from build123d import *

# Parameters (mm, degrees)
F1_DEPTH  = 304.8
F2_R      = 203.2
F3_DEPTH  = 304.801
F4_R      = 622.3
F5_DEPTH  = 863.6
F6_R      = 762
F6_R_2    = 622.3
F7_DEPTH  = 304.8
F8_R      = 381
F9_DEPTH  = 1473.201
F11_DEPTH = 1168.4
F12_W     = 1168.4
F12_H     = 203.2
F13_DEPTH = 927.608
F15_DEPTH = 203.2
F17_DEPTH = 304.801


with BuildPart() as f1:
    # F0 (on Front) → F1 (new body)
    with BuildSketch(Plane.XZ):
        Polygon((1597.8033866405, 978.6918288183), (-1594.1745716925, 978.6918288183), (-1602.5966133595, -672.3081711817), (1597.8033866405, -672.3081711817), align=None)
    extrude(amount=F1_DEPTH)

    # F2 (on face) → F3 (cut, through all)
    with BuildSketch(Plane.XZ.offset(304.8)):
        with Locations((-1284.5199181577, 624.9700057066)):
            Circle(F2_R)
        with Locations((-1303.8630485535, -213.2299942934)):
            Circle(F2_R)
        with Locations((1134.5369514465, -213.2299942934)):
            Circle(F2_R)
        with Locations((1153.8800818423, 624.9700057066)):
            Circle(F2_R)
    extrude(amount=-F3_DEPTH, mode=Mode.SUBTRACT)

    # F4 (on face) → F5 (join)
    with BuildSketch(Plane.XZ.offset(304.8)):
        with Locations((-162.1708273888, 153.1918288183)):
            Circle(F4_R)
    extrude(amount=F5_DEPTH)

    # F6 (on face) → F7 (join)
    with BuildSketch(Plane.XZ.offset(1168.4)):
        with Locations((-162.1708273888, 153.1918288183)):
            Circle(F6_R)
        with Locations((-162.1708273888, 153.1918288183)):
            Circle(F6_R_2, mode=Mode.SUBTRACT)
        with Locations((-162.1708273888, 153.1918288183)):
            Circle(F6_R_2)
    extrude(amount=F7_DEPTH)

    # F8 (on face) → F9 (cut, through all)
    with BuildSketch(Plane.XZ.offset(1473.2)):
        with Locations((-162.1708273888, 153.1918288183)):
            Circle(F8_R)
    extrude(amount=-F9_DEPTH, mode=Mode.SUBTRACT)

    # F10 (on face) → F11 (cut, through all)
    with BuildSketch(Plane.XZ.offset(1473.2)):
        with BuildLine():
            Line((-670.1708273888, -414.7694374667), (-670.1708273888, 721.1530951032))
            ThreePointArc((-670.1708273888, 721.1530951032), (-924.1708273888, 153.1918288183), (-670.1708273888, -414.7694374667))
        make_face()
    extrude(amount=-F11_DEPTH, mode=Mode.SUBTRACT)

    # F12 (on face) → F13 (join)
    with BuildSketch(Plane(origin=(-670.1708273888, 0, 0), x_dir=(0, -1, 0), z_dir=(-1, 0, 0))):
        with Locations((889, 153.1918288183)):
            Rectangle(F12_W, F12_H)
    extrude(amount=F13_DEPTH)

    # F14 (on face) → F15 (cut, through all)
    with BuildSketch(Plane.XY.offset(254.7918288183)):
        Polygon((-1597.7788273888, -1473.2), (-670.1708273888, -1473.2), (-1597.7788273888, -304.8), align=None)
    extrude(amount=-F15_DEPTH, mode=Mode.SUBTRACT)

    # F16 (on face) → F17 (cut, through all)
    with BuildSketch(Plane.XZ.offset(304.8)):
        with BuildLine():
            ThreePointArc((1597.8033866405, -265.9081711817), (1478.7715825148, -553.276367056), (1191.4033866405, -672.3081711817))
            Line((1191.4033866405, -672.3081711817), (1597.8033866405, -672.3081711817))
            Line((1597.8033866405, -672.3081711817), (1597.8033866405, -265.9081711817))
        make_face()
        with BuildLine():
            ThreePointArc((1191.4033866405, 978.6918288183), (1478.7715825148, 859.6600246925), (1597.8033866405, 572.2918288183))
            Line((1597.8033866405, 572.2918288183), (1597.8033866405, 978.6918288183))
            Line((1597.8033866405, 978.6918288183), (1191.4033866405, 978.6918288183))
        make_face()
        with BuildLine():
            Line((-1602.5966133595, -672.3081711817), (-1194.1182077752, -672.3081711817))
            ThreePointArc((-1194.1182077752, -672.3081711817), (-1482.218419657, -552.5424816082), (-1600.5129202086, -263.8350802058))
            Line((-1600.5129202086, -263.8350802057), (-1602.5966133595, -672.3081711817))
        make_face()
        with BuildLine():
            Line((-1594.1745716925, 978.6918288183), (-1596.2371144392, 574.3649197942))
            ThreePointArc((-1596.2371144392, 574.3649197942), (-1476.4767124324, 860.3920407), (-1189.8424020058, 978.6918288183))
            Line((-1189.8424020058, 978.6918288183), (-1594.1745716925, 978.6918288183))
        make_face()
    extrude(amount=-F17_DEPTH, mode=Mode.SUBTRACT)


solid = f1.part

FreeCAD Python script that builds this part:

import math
import FreeCAD as App
import Part
import Sketcher
Q = App.Units.Quantity


def add_polygon(sketch, points):
    """Adds a closed chain of lines whose ends are joined by coincident constraints."""
    first, n = sketch.GeometryCount, len(points)
    for a, b in zip(points, points[1:] + points[:1]):
        sketch.addGeometry(Part.LineSegment(App.Vector(*a, 0), App.Vector(*b, 0)), False)
    for i in range(n):
        sketch.addConstraint(Sketcher.Constraint("Coincident", first + i, 2, first + (i + 1) % n, 1))

doc = App.newDocument("Part")
body = doc.addObject("PartDesign::Body", "Body")

# Sketch on XZ plane
sketch1 = body.newObject("Sketcher::SketchObject", "Sketch")
sketch1.AttachmentSupport = (doc.getObject("XZ_Plane"), [""])
sketch1.MapMode = "FlatFace"
add_polygon(sketch1, [(1597.803387, 978.691829), (-1594.174572, 978.691829), (-1602.596613, -672.308171), (1597.803387, -672.308171)])  # lines 0-3
sketch1.addConstraint(Sketcher.Constraint("Horizontal", 0))
sketch1.addConstraint(Sketcher.Constraint("Horizontal", 2))
sketch1.addConstraint(Sketcher.Constraint("Vertical", 3))
sketch1.addConstraint(Sketcher.Constraint("DistanceX", 2, 1, 2, 2, Q("126 in")))
sketch1.addConstraint(Sketcher.Constraint("DistanceY", 3, 1, 3, 2, Q("65 in")))
sketch1.addConstraint(Sketcher.Constraint("DistanceX", 0, 2, 0, 1, Q("3191.977958 mm")))
sketch1.addConstraint(Sketcher.Constraint("DistanceX", 0, 2, -1, 1, Q("1594.174572 mm")))
sketch1.addConstraint(Sketcher.Constraint("DistanceY", -1, 1, 0, 2, Q("978.691829 mm")))
pad1 = body.newObject("PartDesign::Pad", "Pad")
pad1.Profile = sketch1
pad1.Length = Q("12 in")

# Sketch on XZ plane
sketch2 = body.newObject("Sketcher::SketchObject", "Sketch001")
sketch2.AttachmentSupport = (doc.getObject("XZ_Plane"), [""])
sketch2.MapMode = "FlatFace"
sketch2.AttachmentOffset = App.Placement(App.Vector(0, 0, 12 * 25.4), App.Rotation())
sketch2.addGeometry(Part.Circle(App.Vector(-1284.519918, 624.970006, 0), App.Vector(0, 0, 1), 203.2), False)
sketch2.addGeometry(Part.Circle(App.Vector(-1303.863049, -213.229994, 0), App.Vector(0, 0, 1), 203.2), False)
sketch2.addGeometry(Part.Circle(App.Vector(1134.536951, -213.229994, 0), App.Vector(0, 0, 1), 203.2), False)
sketch2.addGeometry(Part.Circle(App.Vector(1153.880082, 624.970006, 0), App.Vector(0, 0, 1), 203.2), False)
sketch2.addConstraint(Sketcher.Constraint("Equal", 0, 1))
sketch2.addConstraint(Sketcher.Constraint("Equal", 1, 2))
sketch2.addConstraint(Sketcher.Constraint("Equal", 2, 3))
sketch2.addConstraint(Sketcher.Constraint("Horizontal", 1, 3, 2, 3))
sketch2.addConstraint(Sketcher.Constraint("Horizontal", 0, 3, 3, 3))
sketch2.addConstraint(Sketcher.Constraint("Diameter", 0, Q("16 in")))
sketch2.addConstraint(Sketcher.Constraint("DistanceY", 1, 3, 0, 3, Q("33 in")))
sketch2.addConstraint(Sketcher.Constraint("DistanceX", 1, 3, 2, 3, Q("96 in")))
sketch2.addConstraint(Sketcher.Constraint("DistanceX", 0, 3, 3, 3, Q("96 in")))
sketch2.addConstraint(Sketcher.Constraint("DistanceX", 0, 3, -1, 1, Q("1284.519918 mm")))
sketch2.addConstraint(Sketcher.Constraint("DistanceX", 1, 3, -1, 1, Q("1303.863049 mm")))
sketch2.addConstraint(Sketcher.Constraint("DistanceY", -1, 1, 0, 3, Q("624.970006 mm")))
pocket1 = body.newObject("PartDesign::Pocket", "Pocket")
pocket1.Profile = sketch2
pocket1.Type = "ThroughAll"

# Sketch on XZ plane
sketch3 = body.newObject("Sketcher::SketchObject", "Sketch002")
sketch3.AttachmentSupport = (doc.getObject("XZ_Plane"), [""])
sketch3.MapMode = "FlatFace"
sketch3.AttachmentOffset = App.Placement(App.Vector(0, 0, 12 * 25.4), App.Rotation())
sketch3.addGeometry(Part.Circle(App.Vector(-162.170827, 153.191829, 0), App.Vector(0, 0, 1), 622.3), False)
sketch3.addConstraint(Sketcher.Constraint("Diameter", 0, Q("49 in")))
sketch3.addConstraint(Sketcher.Constraint("DistanceY", -1, 1, 0, 3, Q("153.191829 mm")))
sketch3.addConstraint(Sketcher.Constraint("DistanceX", 0, 3, -1, 1, Q("162.170827 mm")))
pad2 = body.newObject("PartDesign::Pad", "Pad001")
pad2.Profile = sketch3
pad2.Length = Q("34 in")

# Sketch on XZ plane
sketch4 = body.newObject("Sketcher::SketchObject", "Sketch003")
sketch4.AttachmentSupport = (doc.getObject("XZ_Plane"), [""])
sketch4.MapMode = "FlatFace"
sketch4.AttachmentOffset = App.Placement(App.Vector(0, 0, 46 * 25.4), App.Rotation())
sketch4.addGeometry(Part.Circle(App.Vector(-162.170827, 153.191829, 0), App.Vector(0, 0, 1), 762), False)
sketch4.addConstraint(Sketcher.Constraint("Diameter", 0, Q("60 in")))
sketch4.addConstraint(Sketcher.Constraint("DistanceY", -1, 1, 0, 3, Q("153.191829 mm")))
sketch4.addConstraint(Sketcher.Constraint("DistanceX", 0, 3, -1, 1, Q("162.170827 mm")))
pad3 = body.newObject("PartDesign::Pad", "Pad002")
pad3.Profile = sketch4
pad3.Length = Q("12 in")

# Sketch on XZ plane
sketch5 = body.newObject("Sketcher::SketchObject", "Sketch004")
sketch5.AttachmentSupport = (doc.getObject("XZ_Plane"), [""])
sketch5.MapMode = "FlatFace"
sketch5.AttachmentOffset = App.Placement(App.Vector(0, 0, 58 * 25.4), App.Rotation())
sketch5.addGeometry(Part.Circle(App.Vector(-162.170827, 153.191829, 0), App.Vector(0, 0, 1), 381), False)
sketch5.addConstraint(Sketcher.Constraint("Diameter", 0, Q("30 in")))
sketch5.addConstraint(Sketcher.Constraint("DistanceY", -1, 1, 0, 3, Q("153.191829 mm")))
sketch5.addConstraint(Sketcher.Constraint("DistanceX", 0, 3, -1, 1, Q("162.170827 mm")))
pocket2 = body.newObject("PartDesign::Pocket", "Pocket001")
pocket2.Profile = sketch5
pocket2.Type = "ThroughAll"

# Sketch on XZ plane
sketch6 = body.newObject("Sketcher::SketchObject", "Sketch005")
sketch6.AttachmentSupport = (doc.getObject("XZ_Plane"), [""])
sketch6.MapMode = "FlatFace"
sketch6.AttachmentOffset = App.Placement(App.Vector(0, 0, 58 * 25.4), App.Rotation())
sketch6.addGeometry(Part.LineSegment(App.Vector(-670.170827, -414.769437, 0), App.Vector(-670.170827, 721.153095, 0)), False)
sketch6.addGeometry(Part.ArcOfCircle(Part.Circle(App.Vector(-162.170827, 153.191829, 0), App.Vector(0, 0, 1), 762), math.radians(131.810315), math.radians(228.189685)), False)
sketch6.addConstraint(Sketcher.Constraint("Coincident", 0, 1, 1, 2))
sketch6.addConstraint(Sketcher.Constraint("Coincident", 1, 1, 0, 2))
sketch6.addConstraint(Sketcher.Constraint("Vertical", 0))
sketch6.addConstraint(Sketcher.Constraint("Radius", 1, Q("30 in")))
sketch6.addConstraint(Sketcher.Constraint("DistanceX", 0, 1, 1, 3, Q("20 in")))
sketch6.addConstraint(Sketcher.Constraint("DistanceY", -1, 1, 1, 3, Q("153.191829 mm")))
sketch6.addConstraint(Sketcher.Constraint("DistanceX", 1, 3, -1, 1, Q("162.170827 mm")))
pocket3 = body.newObject("PartDesign::Pocket", "Pocket002")
pocket3.Profile = sketch6
pocket3.Length = Q("46 in")

# Sketch on YZ plane
sketch7 = body.newObject("Sketcher::SketchObject", "Sketch006")
sketch7.AttachmentSupport = (doc.getObject("YZ_Plane"), [""])
sketch7.MapMode = "FlatFace"
sketch7.AttachmentOffset = App.Placement(App.Vector(0, 0, -670.170827), App.Rotation())
add_polygon(sketch7, [(-304.8, 254.791829), (-304.8, 51.591829), (-1473.2, 51.591829), (-1473.2, 254.791829)])  # lines 0-3
sketch7.addConstraint(Sketcher.Constraint("Vertical", 0))
sketch7.addConstraint(Sketcher.Constraint("Horizontal", 1))
sketch7.addConstraint(Sketcher.Constraint("Vertical", 2))
sketch7.addConstraint(Sketcher.Constraint("Horizontal", 3))
sketch7.addConstraint(Sketcher.Constraint("DistanceX", 1, 2, 1, 1, Q("46 in")))
sketch7.addConstraint(Sketcher.Constraint("DistanceY", 0, 2, 0, 1, Q("8 in")))
sketch7.addConstraint(Sketcher.Constraint("DistanceX", 0, 2, -1, 1, Q("12 in")))
sketch7.addConstraint(Sketcher.Constraint("DistanceY", -1, 1, 0, 2, Q("51.591829 mm")))
pad4 = body.newObject("PartDesign::Pad", "Pad003")
pad4.Profile = sketch7
pad4.Length = Q("36.52 in")
pad4.Reversed = True

# Sketch on XY plane
sketch8 = body.newObject("Sketcher::SketchObject", "Sketch007")
sketch8.AttachmentSupport = (doc.getObject("XY_Plane"), [""])
sketch8.MapMode = "FlatFace"
sketch8.AttachmentOffset = App.Placement(App.Vector(0, 0, 254.791829), App.Rotation())
add_polygon(sketch8, [(-1597.778827, -1473.2), (-670.170827, -1473.2), (-1597.778827, -304.8)])  # lines 0-2
sketch8.addConstraint(Sketcher.Constraint("Horizontal", 0))
sketch8.addConstraint(Sketcher.Constraint("Vertical", 2))
sketch8.addConstraint(Sketcher.Constraint("DistanceY", 2, 2, 2, 1, Q("46 in")))
sketch8.addConstraint(Sketcher.Constraint("DistanceY", 0, 2, -1, 1, Q("58 in")))
sketch8.addConstraint(Sketcher.Constraint("DistanceX", 0, 1, 0, 2, Q("36.52 in")))
sketch8.addConstraint(Sketcher.Constraint("DistanceX", 0, 2, -1, 1, Q("670.170827 mm")))
pocket4 = body.newObject("PartDesign::Pocket", "Pocket003")
pocket4.Profile = sketch8
pocket4.Type = "ThroughAll"

# Sketch on XZ plane
sketch9 = body.newObject("Sketcher::SketchObject", "Sketch008")
sketch9.AttachmentSupport = (doc.getObject("XZ_Plane"), [""])
sketch9.MapMode = "FlatFace"
sketch9.AttachmentOffset = App.Placement(App.Vector(0, 0, 12 * 25.4), App.Rotation())
sketch9.addGeometry(Part.ArcOfCircle(Part.Circle(App.Vector(1191.403387, -265.908171, 0), App.Vector(0, 0, 1), 406.4), math.radians(-90), math.radians(0)), False)
sketch9.addGeometry(Part.LineSegment(App.Vector(1191.403387, -672.308171, 0), App.Vector(1597.803387, -672.308171, 0)), False)
sketch9.addGeometry(Part.LineSegment(App.Vector(1597.803387, -672.308171, 0), App.Vector(1597.803387, -265.908171, 0)), False)
sketch9.addGeometry(Part.ArcOfCircle(Part.Circle(App.Vector(1191.403387, 572.291829, 0), App.Vector(0, 0, 1), 406.4), math.radians(0), math.radians(90)), False)
sketch9.addGeometry(Part.LineSegment(App.Vector(1597.803387, 572.291829, 0), App.Vector(1597.803387, 978.691829, 0)), False)
sketch9.addGeometry(Part.LineSegment(App.Vector(1597.803387, 978.691829, 0), App.Vector(1191.403387, 978.691829, 0)), False)
sketch9.addGeometry(Part.LineSegment(App.Vector(-1602.596613, -672.308171, 0), App.Vector(-1194.118208, -672.308171, 0)), False)
sketch9.addGeometry(Part.ArcOfCircle(Part.Circle(App.Vector(-1194.118208, -265.908171, 0), App.Vector(0, 0, 1), 406.4), math.radians(179.707727), math.radians(270)), False)
sketch9.addGeometry(Part.LineSegment(App.Vector(-1600.51292, -263.83508, 0), App.Vector(-1602.596613, -672.308171, 0)), False)
sketch9.addGeometry(Part.LineSegment(App.Vector(-1594.174572, 978.691829, 0), App.Vector(-1596.237114, 574.36492, 0)), False)
sketch9.addGeometry(Part.ArcOfCircle(Part.Circle(App.Vector(-1189.842402, 572.291829, 0), App.Vector(0, 0, 1), 406.4), math.radians(90), math.radians(179.707727)), False)
sketch9.addGeometry(Part.LineSegment(App.Vector(-1189.842402, 978.691829, 0), App.Vector(-1594.174572, 978.691829, 0)), False)
sketch9.addConstraint(Sketcher.Constraint("Tangent", 0, 1, 1, 1))
sketch9.addConstraint(Sketcher.Constraint("Coincident", 1, 2, 2, 1))
sketch9.addConstraint(Sketcher.Constraint("Tangent", 2, 2, 0, 2))
sketch9.addConstraint(Sketcher.Constraint("Tangent", 3, 1, 4, 1))
sketch9.addConstraint(Sketcher.Constraint("Coincident", 4, 2, 5, 1))
sketch9.addConstraint(Sketcher.Constraint("Tangent", 5, 2, 3, 2))
sketch9.addConstraint(Sketcher.Constraint("Tangent", 6, 2, 7, 2))
sketch9.addConstraint(Sketcher.Constraint("Tangent", 7, 1, 8, 1))
sketch9.addConstraint(Sketcher.Constraint("Coincident", 8, 2, 6, 1))
sketch9.addConstraint(Sketcher.Constraint("Tangent", 9, 2, 10, 2))
sketch9.addConstraint(Sketcher.Constraint("Tangent", 10, 1, 11, 1))
sketch9.addConstraint(Sketcher.Constraint("Coincident", 11, 2, 9, 1))
sketch9.addConstraint(Sketcher.Constraint("Horizontal", 1))
sketch9.addConstraint(Sketcher.Constraint("Vertical", 2))
sketch9.addConstraint(Sketcher.Constraint("Vertical", 4))
sketch9.addConstraint(Sketcher.Constraint("Horizontal", 5))
sketch9.addConstraint(Sketcher.Constraint("Horizontal", 6))
sketch9.addConstraint(Sketcher.Constraint("Horizontal", 11))
sketch9.addConstraint(Sketcher.Constraint("Equal", 0, 3))
sketch9.addConstraint(Sketcher.Constraint("Equal", 3, 7))
sketch9.addConstraint(Sketcher.Constraint("Equal", 7, 10))
sketch9.addConstraint(Sketcher.Constraint("Parallel", 8, 9))
sketch9.addConstraint(Sketcher.Constraint("Horizontal", 0, 3, 7, 3))
sketch9.addConstraint(Sketcher.Constraint("Horizontal", 3, 3, 10, 3))
sketch9.addConstraint(Sketcher.Constraint("Vertical", 0, 3, 3, 3))
sketch9.addConstraint(Sketcher.Constraint("Radius", 0, Q("16 in")))
sketch9.addConstraint(Sketcher.Constraint("DistanceY", 0, 3, 3, 3, Q("33 in")))
sketch9.addConstraint(Sketcher.Constraint("DistanceX", 11, 2, 11, 1, Q("404.33217 mm")))
sketch9.addConstraint(Sketcher.Constraint("DistanceX", 8, 2, 9, 2, Q("6.359499 mm")))
sketch9.addConstraint(Sketcher.Constraint("DistanceY", 0, 3, -1, 1, Q("265.908171 mm")))
sketch9.addConstraint(Sketcher.Constraint("DistanceX", 7, 1, -1, 1, Q("1600.51292 mm")))
sketch9.addConstraint(Sketcher.Constraint("DistanceX", 10, 3, 3, 3, Q("2381.245789 mm")))
pocket5 = body.newObject("PartDesign::Pocket", "Pocket004")
pocket5.Profile = sketch9
pocket5.Type = "ThroughAll"

doc.recompute()
